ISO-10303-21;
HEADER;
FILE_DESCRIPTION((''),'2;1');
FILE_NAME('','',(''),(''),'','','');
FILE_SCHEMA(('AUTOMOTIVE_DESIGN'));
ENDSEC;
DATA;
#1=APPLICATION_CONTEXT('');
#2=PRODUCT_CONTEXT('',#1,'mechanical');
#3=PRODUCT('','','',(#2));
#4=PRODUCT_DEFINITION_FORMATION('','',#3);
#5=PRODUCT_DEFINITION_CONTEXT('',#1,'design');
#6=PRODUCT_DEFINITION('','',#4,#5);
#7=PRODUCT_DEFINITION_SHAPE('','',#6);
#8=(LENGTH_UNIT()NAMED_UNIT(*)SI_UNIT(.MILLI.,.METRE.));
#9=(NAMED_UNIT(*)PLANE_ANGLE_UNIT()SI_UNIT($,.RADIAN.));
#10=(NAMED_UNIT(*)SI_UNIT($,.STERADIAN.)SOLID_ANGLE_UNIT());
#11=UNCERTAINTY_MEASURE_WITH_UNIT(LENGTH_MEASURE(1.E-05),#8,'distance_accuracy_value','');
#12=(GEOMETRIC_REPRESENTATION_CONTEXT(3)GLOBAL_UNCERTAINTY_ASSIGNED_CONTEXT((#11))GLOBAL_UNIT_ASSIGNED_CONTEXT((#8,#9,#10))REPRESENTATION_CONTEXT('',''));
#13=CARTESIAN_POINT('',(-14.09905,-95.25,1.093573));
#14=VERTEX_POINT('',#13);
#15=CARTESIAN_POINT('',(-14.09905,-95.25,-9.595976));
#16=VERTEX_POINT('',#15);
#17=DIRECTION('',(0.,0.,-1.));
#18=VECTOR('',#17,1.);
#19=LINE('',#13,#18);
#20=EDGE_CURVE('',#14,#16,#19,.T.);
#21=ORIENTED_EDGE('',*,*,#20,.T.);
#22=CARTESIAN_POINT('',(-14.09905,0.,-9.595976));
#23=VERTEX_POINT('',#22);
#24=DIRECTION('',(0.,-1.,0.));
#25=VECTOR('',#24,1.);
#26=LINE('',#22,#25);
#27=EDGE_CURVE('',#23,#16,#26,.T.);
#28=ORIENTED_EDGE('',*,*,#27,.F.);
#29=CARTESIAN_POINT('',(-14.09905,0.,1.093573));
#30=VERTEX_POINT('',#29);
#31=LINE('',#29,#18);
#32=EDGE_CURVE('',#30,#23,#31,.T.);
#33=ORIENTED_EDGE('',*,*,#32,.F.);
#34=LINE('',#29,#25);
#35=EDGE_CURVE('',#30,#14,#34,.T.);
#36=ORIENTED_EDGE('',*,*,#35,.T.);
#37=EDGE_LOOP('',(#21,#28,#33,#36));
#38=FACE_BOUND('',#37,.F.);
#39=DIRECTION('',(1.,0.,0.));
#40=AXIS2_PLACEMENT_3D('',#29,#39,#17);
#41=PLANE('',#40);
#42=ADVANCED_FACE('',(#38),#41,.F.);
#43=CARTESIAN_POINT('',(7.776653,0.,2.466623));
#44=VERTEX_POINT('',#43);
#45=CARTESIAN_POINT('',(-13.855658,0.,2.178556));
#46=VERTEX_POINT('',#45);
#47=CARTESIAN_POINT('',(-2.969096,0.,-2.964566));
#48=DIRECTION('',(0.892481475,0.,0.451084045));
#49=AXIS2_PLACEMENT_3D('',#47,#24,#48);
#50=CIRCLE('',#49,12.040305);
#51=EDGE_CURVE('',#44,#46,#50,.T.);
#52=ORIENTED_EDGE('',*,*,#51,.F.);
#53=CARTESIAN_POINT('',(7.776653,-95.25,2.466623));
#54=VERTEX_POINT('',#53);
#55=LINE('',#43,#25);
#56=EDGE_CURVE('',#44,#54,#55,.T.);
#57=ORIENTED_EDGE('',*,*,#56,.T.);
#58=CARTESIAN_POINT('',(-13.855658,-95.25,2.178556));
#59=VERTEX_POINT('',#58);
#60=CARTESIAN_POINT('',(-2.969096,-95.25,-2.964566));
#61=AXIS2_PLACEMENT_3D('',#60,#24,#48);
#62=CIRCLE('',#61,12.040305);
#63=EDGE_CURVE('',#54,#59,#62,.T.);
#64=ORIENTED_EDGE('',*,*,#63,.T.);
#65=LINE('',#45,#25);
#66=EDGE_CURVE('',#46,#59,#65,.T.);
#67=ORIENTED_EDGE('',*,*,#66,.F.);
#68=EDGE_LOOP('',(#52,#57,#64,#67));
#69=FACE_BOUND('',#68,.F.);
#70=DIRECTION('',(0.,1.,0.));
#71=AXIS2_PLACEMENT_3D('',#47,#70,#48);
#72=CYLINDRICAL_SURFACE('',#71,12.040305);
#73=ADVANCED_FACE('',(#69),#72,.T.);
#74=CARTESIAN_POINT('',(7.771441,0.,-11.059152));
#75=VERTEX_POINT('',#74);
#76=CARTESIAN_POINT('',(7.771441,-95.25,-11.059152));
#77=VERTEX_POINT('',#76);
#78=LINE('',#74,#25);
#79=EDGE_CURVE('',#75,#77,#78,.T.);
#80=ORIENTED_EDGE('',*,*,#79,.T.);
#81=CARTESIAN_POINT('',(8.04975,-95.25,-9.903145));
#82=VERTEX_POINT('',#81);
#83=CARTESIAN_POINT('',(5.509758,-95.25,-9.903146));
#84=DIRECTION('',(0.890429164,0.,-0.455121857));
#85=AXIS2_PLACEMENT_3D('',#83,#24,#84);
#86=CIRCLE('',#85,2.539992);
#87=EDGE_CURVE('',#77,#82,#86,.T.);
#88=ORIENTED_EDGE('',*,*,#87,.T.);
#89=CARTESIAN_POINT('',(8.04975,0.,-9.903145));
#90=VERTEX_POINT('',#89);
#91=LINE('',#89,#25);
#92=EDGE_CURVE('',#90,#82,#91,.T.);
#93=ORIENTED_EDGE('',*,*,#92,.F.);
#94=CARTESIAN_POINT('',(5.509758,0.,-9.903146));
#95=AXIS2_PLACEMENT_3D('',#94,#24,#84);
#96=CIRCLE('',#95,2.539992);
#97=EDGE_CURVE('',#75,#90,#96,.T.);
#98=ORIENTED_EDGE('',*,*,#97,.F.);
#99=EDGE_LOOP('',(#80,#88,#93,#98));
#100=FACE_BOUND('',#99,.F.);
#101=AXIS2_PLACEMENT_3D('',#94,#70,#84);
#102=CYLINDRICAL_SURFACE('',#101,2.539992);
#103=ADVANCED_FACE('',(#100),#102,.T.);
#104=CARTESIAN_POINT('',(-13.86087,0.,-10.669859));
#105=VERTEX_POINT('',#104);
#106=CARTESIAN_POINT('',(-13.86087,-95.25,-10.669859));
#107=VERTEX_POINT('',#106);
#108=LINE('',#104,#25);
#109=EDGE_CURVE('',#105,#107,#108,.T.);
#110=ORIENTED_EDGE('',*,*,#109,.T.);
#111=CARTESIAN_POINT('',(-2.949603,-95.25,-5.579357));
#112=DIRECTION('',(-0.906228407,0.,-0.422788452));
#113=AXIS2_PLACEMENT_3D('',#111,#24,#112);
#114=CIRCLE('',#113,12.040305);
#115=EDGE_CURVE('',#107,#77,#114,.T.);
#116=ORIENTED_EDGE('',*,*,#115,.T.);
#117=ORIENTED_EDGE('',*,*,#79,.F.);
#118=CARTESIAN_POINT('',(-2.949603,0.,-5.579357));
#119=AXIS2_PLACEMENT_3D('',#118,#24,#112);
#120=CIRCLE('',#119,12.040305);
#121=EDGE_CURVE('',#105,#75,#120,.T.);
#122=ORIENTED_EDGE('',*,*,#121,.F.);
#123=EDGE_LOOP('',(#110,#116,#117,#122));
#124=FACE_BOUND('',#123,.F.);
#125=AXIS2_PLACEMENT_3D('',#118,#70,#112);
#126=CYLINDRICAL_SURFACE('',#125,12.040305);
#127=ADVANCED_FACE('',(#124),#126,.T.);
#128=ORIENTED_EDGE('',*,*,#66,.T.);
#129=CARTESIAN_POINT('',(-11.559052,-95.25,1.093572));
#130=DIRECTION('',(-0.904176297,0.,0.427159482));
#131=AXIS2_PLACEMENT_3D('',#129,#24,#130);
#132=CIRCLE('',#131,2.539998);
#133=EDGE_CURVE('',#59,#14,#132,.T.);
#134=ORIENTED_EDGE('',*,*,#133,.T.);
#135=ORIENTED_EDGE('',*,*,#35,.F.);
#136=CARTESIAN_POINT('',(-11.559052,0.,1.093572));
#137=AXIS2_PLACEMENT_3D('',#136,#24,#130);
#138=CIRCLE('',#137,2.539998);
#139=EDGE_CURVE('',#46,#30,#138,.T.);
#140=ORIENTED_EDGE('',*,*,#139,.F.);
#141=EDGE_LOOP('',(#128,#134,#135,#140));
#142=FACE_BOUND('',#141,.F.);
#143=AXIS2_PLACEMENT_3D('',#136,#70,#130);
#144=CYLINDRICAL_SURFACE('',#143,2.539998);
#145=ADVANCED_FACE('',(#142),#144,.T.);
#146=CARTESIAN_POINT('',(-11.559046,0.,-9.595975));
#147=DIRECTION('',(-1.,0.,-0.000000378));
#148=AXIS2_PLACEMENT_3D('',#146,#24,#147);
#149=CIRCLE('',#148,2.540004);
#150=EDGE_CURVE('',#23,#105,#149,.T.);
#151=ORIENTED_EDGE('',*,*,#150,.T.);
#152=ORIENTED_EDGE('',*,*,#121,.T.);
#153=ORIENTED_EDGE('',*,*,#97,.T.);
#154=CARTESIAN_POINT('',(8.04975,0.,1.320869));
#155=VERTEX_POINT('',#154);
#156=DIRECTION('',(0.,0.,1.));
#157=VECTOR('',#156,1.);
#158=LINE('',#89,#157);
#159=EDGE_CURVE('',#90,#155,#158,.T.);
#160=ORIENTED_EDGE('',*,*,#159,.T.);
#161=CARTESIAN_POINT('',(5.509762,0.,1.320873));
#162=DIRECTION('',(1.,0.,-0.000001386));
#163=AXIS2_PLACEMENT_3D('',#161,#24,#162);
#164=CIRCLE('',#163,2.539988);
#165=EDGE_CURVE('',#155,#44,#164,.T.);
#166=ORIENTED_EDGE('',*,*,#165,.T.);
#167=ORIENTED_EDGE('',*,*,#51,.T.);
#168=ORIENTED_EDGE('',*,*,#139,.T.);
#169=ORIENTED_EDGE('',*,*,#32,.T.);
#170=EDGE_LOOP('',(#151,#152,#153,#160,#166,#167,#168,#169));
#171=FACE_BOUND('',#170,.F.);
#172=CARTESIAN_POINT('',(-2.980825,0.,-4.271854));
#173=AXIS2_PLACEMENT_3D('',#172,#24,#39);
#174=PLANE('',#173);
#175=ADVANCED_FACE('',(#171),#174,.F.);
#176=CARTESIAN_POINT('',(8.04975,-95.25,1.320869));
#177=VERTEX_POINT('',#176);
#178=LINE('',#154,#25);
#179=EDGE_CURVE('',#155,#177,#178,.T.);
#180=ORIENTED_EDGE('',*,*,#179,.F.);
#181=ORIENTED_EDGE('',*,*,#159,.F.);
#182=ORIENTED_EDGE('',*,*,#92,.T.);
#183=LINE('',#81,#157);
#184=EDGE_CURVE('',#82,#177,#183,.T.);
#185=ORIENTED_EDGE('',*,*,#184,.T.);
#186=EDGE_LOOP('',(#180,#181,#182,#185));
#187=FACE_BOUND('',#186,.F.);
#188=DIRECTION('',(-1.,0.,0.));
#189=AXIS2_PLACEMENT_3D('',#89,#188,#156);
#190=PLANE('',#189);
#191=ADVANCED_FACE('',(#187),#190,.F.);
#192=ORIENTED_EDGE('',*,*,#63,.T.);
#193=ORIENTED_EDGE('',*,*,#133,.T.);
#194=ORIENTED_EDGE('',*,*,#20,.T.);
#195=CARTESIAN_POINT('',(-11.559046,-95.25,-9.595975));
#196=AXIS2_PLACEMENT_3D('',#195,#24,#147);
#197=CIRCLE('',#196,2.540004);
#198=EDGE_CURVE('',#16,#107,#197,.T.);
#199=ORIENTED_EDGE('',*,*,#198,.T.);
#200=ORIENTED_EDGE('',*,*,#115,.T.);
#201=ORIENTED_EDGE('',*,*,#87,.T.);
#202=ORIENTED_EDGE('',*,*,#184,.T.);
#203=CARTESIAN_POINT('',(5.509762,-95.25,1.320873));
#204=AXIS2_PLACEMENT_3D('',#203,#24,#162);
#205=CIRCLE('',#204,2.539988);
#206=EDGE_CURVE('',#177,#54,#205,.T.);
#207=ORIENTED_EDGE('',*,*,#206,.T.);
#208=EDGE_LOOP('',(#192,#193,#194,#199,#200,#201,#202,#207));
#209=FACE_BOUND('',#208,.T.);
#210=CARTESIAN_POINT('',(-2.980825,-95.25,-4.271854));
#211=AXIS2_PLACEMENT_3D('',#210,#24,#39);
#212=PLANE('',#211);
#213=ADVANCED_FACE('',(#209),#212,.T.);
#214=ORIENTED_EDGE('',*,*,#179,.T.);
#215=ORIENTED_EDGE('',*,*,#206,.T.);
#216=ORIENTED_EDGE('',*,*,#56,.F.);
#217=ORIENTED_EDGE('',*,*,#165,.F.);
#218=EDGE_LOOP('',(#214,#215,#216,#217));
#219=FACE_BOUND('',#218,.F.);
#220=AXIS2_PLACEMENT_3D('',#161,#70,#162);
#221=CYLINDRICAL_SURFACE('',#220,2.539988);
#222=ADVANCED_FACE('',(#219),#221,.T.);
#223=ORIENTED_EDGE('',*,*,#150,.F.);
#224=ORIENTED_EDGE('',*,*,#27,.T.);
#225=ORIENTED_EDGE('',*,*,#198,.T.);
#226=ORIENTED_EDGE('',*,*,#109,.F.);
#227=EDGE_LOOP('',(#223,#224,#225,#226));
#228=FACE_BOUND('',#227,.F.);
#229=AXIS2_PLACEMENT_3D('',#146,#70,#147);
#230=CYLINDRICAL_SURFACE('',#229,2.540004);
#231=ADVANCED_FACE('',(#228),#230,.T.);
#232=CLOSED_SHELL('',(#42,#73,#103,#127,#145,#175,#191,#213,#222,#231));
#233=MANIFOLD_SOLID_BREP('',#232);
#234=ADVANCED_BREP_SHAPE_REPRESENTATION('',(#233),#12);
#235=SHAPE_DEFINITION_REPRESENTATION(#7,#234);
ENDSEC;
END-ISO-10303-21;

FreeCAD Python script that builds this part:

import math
import FreeCAD as App
import Part
import Sketcher
from FreeCAD import Vector
Q = App.Units.Quantity

doc = App.newDocument("Part")
params = doc.addObject("Spreadsheet::Sheet", "Params")
for row, (alias, value) in enumerate([
    ("sketch1_radius", "0.0999999 in"),
    ("sketch1_radius2", "0.1000002 in"),
    ("pad1_length", "3.75 in"),
], start=1):
    params.set(f"A{row}", alias)
    params.set(f"B{row}", "=" + value)
    params.setAlias(f"B{row}", alias)

body = doc.addObject("PartDesign::Body", "Body")

# Sketch on XZ plane
sketch1 = body.newObject("Sketcher::SketchObject", "Sketch")
sketch1.AttachmentSupport = (doc.getObject("XZ_Plane"), [""])
sketch1.MapMode = "FlatFace"
sketch1.addGeometry([
    Part.ArcOfCircle(Part.Circle(Vector(-11.559052, 1.093572, 0), Vector(0, 0, 1), 2.539998), math.radians(154.712572), math.radians(179.999974)),  # 0
    Part.LineSegment(Vector(-14.09905, 1.093573, 0), Vector(-14.09905, -9.595976, 0)),  # 1
    Part.ArcOfCircle(Part.Circle(Vector(-11.559046, -9.595975, 0), Vector(0, 0, 1), 2.540004), math.radians(-179.999978), math.radians(-154.989254)),  # 2
    Part.ArcOfCircle(Part.Circle(Vector(-2.949603, -5.579357, 0), Vector(0, 0, 1), 12.040305), math.radians(-154.98924), math.radians(-27.072716)),  # 3
    Part.ArcOfCircle(Part.Circle(Vector(5.509758, -9.903146, 0), Vector(0, 0, 1), 2.539992), math.radians(-27.072775), math.radians(0.00003)),  # 4
    Part.LineSegment(Vector(8.04975, -9.903145, 0), Vector(8.04975, 1.320869, 0)),  # 5
    Part.ArcOfCircle(Part.Circle(Vector(5.509762, 1.320873, 0), Vector(0, 0, 1), 2.539988), math.radians(-0.000079), math.radians(26.813319)),  # 6
    Part.ArcOfCircle(Part.Circle(Vector(-2.969096, -2.964566, 0), Vector(0, 0, 1), 12.040305), math.radians(26.813256), math.radians(154.712614)),  # 7
], False)
sketch1.addConstraint([
    Sketcher.Constraint("Tangent", 0, 2, 1, 1),
    Sketcher.Constraint("Tangent", 1, 2, 2, 1),
    Sketcher.Constraint("Tangent", 2, 2, 3, 1),
    Sketcher.Constraint("Tangent", 3, 2, 4, 1),
    Sketcher.Constraint("Tangent", 4, 2, 5, 1),
    Sketcher.Constraint("Tangent", 5, 2, 6, 1),
    Sketcher.Constraint("Tangent", 6, 2, 7, 1),
    Sketcher.Constraint("Tangent", 7, 2, 0, 1),
    Sketcher.Constraint("Vertical", 1),
    Sketcher.Constraint("Vertical", 5),
    Sketcher.Constraint("Equal", 3, 7),
    Sketcher.Constraint("Radius", 0, Q("0.0999999 in")),
    Sketcher.Constraint("Radius", 2, Q("0.1000002 in")),
    Sketcher.Constraint("Radius", 4, 2.539992),
    Sketcher.Constraint("DistanceX", 2, 3, 4, 3, Q("0.6720002 in")),
    Sketcher.Constraint("Radius", 3, 12.040305),
    Sketcher.Constraint("Radius", 6, 2.539988),
    Sketcher.Constraint("DistanceY", 1, 2, 1, 1, 10.689549),
    Sketcher.Constraint("DistanceY", 0, 3, 6, 3, 0.227301),
    Sketcher.Constraint("DistanceY", 2, 2, 3, 3, 5.090502),
    Sketcher.Constraint("DistanceY", -1, 1, 0, 3, 1.093572),
    Sketcher.Constraint("DistanceX", -1, 1, 4, 3, 5.509758),
])
sketch1.setExpression("Constraints[11]", "Params.sketch1_radius")
sketch1.setExpression("Constraints[12]", "Params.sketch1_radius2")
pad1 = body.newObject("PartDesign::Pad", "Pad")
pad1.Profile = sketch1
pad1.setExpression("Length", "Params.pad1_length")

doc.recompute()
